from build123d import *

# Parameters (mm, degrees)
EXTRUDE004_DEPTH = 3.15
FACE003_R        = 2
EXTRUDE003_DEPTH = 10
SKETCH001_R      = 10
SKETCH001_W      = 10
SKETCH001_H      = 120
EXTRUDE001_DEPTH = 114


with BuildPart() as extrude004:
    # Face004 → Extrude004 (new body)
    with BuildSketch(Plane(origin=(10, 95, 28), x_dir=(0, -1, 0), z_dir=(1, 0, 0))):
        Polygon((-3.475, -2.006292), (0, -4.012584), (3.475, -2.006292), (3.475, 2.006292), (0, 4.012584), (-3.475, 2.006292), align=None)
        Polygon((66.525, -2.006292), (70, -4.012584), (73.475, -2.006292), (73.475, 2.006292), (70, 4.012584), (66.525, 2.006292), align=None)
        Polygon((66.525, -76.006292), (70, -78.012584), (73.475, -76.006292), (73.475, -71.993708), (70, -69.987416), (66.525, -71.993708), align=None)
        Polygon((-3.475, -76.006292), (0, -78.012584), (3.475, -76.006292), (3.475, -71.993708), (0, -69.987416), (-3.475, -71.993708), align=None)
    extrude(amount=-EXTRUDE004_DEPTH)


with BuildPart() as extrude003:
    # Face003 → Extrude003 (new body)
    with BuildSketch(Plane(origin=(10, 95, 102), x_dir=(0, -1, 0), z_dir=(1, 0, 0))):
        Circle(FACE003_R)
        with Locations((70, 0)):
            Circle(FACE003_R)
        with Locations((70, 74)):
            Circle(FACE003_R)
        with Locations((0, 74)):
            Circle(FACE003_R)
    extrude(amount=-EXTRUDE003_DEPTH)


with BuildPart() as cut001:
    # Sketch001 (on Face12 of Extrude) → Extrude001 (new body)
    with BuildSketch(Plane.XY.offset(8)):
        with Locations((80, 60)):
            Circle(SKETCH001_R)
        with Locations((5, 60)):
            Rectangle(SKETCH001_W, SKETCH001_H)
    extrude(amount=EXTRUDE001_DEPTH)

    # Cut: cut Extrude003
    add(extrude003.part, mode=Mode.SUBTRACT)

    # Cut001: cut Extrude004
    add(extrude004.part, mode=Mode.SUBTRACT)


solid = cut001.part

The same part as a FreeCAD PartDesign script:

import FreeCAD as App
import Part
import Sketcher
from FreeCAD import Vector
Q = App.Units.Quantity

doc = App.newDocument("Part")
body = doc.addObject("PartDesign::Body", "Body")
body.AllowCompound = True

# Sketch on YZ plane
sketch1 = body.newObject("Sketcher::SketchObject", "Sketch")
sketch1.AttachmentSupport = (doc.getObject("YZ_Plane"), [""])
sketch1.MapMode = "FlatFace"
sketch1.AttachmentOffset = App.Placement(Vector(0, 0, 10), App.Rotation())
sketch1.addGeometry(Part.LineSegment(Vector(98.5, 30, 0), Vector(95, 32, 0)), False)
sketch1.addGeometry(Part.LineSegment(Vector(95, 32, 0), Vector(91.5, 30, 0)), False)
sketch1.addGeometry(Part.LineSegment(Vector(91.5, 30, 0), Vector(91.5, 26, 0)), False)
sketch1.addGeometry(Part.LineSegment(Vector(91.5, 26, 0), Vector(95, 24, 0)), False)
sketch1.addGeometry(Part.LineSegment(Vector(95, 24, 0), Vector(98.5, 26, 0)), False)
sketch1.addGeometry(Part.LineSegment(Vector(98.5, 26, 0), Vector(98.5, 30, 0)), False)
sketch1.addGeometry(Part.LineSegment(Vector(28.5, 30, 0), Vector(25, 32, 0)), False)
sketch1.addGeometry(Part.LineSegment(Vector(25, 32, 0), Vector(21.5, 30, 0)), False)
sketch1.addGeometry(Part.LineSegment(Vector(21.5, 30, 0), Vector(21.5, 26, 0)), False)
sketch1.addGeometry(Part.LineSegment(Vector(21.5, 26, 0), Vector(25, 24, 0)), False)
sketch1.addGeometry(Part.LineSegment(Vector(25, 24, 0), Vector(28.5, 26, 0)), False)
sketch1.addGeometry(Part.LineSegment(Vector(28.5, 26, 0), Vector(28.5, 30, 0)), False)
sketch1.addGeometry(Part.LineSegment(Vector(28.5, 104, 0), Vector(25, 106, 0)), False)
sketch1.addGeometry(Part.LineSegment(Vector(25, 106, 0), Vector(21.5, 104, 0)), False)
sketch1.addGeometry(Part.LineSegment(Vector(21.5, 104, 0), Vector(21.5, 100, 0)), False)
sketch1.addGeometry(Part.LineSegment(Vector(21.5, 100, 0), Vector(25, 98, 0)), False)
sketch1.addGeometry(Part.LineSegment(Vector(25, 98, 0), Vector(28.5, 100, 0)), False)
sketch1.addGeometry(Part.LineSegment(Vector(28.5, 100, 0), Vector(28.5, 104, 0)), False)
sketch1.addGeometry(Part.LineSegment(Vector(98.5, 104, 0), Vector(95, 106, 0)), False)
sketch1.addGeometry(Part.LineSegment(Vector(95, 106, 0), Vector(91.5, 104, 0)), False)
sketch1.addGeometry(Part.LineSegment(Vector(91.5, 104, 0), Vector(91.5, 100, 0)), False)
sketch1.addGeometry(Part.LineSegment(Vector(91.5, 100, 0), Vector(95, 98, 0)), False)
sketch1.addGeometry(Part.LineSegment(Vector(95, 98, 0), Vector(98.5, 100, 0)), False)
sketch1.addGeometry(Part.LineSegment(Vector(98.5, 100, 0), Vector(98.5, 104, 0)), False)
sketch1.addConstraint(Sketcher.Constraint("Coincident", 0, 2, 1, 1))
sketch1.addConstraint(Sketcher.Constraint("Coincident", 1, 2, 2, 1))
sketch1.addConstraint(Sketcher.Constraint("Coincident", 2, 2, 3, 1))
sketch1.addConstraint(Sketcher.Constraint("Coincident", 3, 2, 4, 1))
sketch1.addConstraint(Sketcher.Constraint("Coincident", 4, 2, 5, 1))
sketch1.addConstraint(Sketcher.Constraint("Coincident", 5, 2, 0, 1))
sketch1.addConstraint(Sketcher.Constraint("Coincident", 6, 2, 7, 1))
sketch1.addConstraint(Sketcher.Constraint("Coincident", 7, 2, 8, 1))
sketch1.addConstraint(Sketcher.Constraint("Coincident", 8, 2, 9, 1))
sketch1.addConstraint(Sketcher.Constraint("Coincident", 9, 2, 10, 1))
sketch1.addConstraint(Sketcher.Constraint("Coincident", 10, 2, 11, 1))
sketch1.addConstraint(Sketcher.Constraint("Coincident", 11, 2, 6, 1))
sketch1.addConstraint(Sketcher.Constraint("Coincident", 12, 2, 13, 1))
sketch1.addConstraint(Sketcher.Constraint("Coincident", 13, 2, 14, 1))
sketch1.addConstraint(Sketcher.Constraint("Coincident", 14, 2, 15, 1))
sketch1.addConstraint(Sketcher.Constraint("Coincident", 15, 2, 16, 1))
sketch1.addConstraint(Sketcher.Constraint("Coincident", 16, 2, 17, 1))
sketch1.addConstraint(Sketcher.Constraint("Coincident", 17, 2, 12, 1))
sketch1.addConstraint(Sketcher.Constraint("Coincident", 18, 2, 19, 1))
sketch1.addConstraint(Sketcher.Constraint("Coincident", 19, 2, 20, 1))
sketch1.addConstraint(Sketcher.Constraint("Coincident", 20, 2, 21, 1))
sketch1.addConstraint(Sketcher.Constraint("Coincident", 21, 2, 22, 1))
sketch1.addConstraint(Sketcher.Constraint("Coincident", 22, 2, 23, 1))
sketch1.addConstraint(Sketcher.Constraint("Coincident", 23, 2, 18, 1))
sketch1.addConstraint(Sketcher.Constraint("Vertical", 2))
sketch1.addConstraint(Sketcher.Constraint("Vertical", 5))
sketch1.addConstraint(Sketcher.Constraint("Vertical", 8))
sketch1.addConstraint(Sketcher.Constraint("Vertical", 11))
sketch1.addConstraint(Sketcher.Constraint("Vertical", 14))
sketch1.addConstraint(Sketcher.Constraint("Vertical", 17))
sketch1.addConstraint(Sketcher.Constraint("Vertical", 20))
sketch1.addConstraint(Sketcher.Constraint("Vertical", 23))
sketch1.addConstraint(Sketcher.Constraint("Parallel", 0, 3))
sketch1.addConstraint(Sketcher.Constraint("Parallel", 1, 4))
sketch1.addConstraint(Sketcher.Constraint("Parallel", 3, 6))
sketch1.addConstraint(Sketcher.Constraint("Parallel", 4, 7))
sketch1.addConstraint(Sketcher.Constraint("Parallel", 6, 9))
sketch1.addConstraint(Sketcher.Constraint("Parallel", 7, 10))
sketch1.addConstraint(Sketcher.Constraint("Parallel", 9, 12))
sketch1.addConstraint(Sketcher.Constraint("Parallel", 10, 13))
sketch1.addConstraint(Sketcher.Constraint("Parallel", 12, 15))
sketch1.addConstraint(Sketcher.Constraint("Parallel", 13, 16))
sketch1.addConstraint(Sketcher.Constraint("Parallel", 15, 18))
sketch1.addConstraint(Sketcher.Constraint("Parallel", 16, 19))
sketch1.addConstraint(Sketcher.Constraint("Parallel", 18, 21))
sketch1.addConstraint(Sketcher.Constraint("Parallel", 19, 22))
sketch1.addConstraint(Sketcher.Constraint("Horizontal", 2, 2, 4, 2))
sketch1.addConstraint(Sketcher.Constraint("Horizontal", 1, 2, 5, 2))
sketch1.addConstraint(Sketcher.Constraint("Horizontal", 0, 2, 6, 2))
sketch1.addConstraint(Sketcher.Constraint("Horizontal", 5, 2, 7, 2))
sketch1.addConstraint(Sketcher.Constraint("Horizontal", 4, 2, 8, 2))
sketch1.addConstraint(Sketcher.Constraint("Horizontal", 3, 2, 9, 2))
sketch1.addConstraint(Sketcher.Constraint("Horizontal", 8, 2, 10, 2))
sketch1.addConstraint(Sketcher.Constraint("Horizontal", 14, 2, 16, 2))
sketch1.addConstraint(Sketcher.Constraint("Horizontal", 13, 2, 17, 2))
sketch1.addConstraint(Sketcher.Constraint("Horizontal", 12, 2, 18, 2))
sketch1.addConstraint(Sketcher.Constraint("Horizontal", 17, 2, 19, 2))
sketch1.addConstraint(Sketcher.Constraint("Horizontal", 16, 2, 20, 2))
sketch1.addConstraint(Sketcher.Constraint("Horizontal", 15, 2, 21, 2))
sketch1.addConstraint(Sketcher.Constraint("Horizontal", 20, 2, 22, 2))
sketch1.addConstraint(Sketcher.Constraint("Vertical", 0, 2, 3, 2))
sketch1.addConstraint(Sketcher.Constraint("Vertical", 9, 2, 12, 2))
sketch1.addConstraint(Sketcher.Constraint("Vertical", 8, 2, 13, 2))
sketch1.addConstraint(Sketcher.Constraint("Vertical", 3, 2, 18, 2))
sketch1.addConstraint(Sketcher.Constraint("Equal", 11, 14))
sketch1.addConstraint(Sketcher.Constraint("Angle", 0, Q("150.000002 deg")))
sketch1.addConstraint(Sketcher.Constraint("DistanceX", -1, 1, 0, 2, 95.0))
sketch1.addConstraint(Sketcher.Constraint("DistanceX", -1, 1, 6, 2, 25.0))
sketch1.addConstraint(Sketcher.Constraint("DistanceY", 6, 2, 12, 2, 74.0))
sketch1.addConstraint(Sketcher.Constraint("DistanceX", 2, 2, 4, 2, 6.95))
sketch1.addConstraint(Sketcher.Constraint("DistanceY", 2, 2, 2, 1, 4.012584))
sketch1.addConstraint(Sketcher.Constraint("DistanceY", -1, 1, 1, 2, 30.006292))
pad1 = body.newObject("PartDesign::Pad", "Pad")
pad1.Profile = sketch1
pad1.Length = 3.15
pad1.Reversed = True
body2 = doc.addObject("PartDesign::Body", "Body001")
body2.AllowCompound = True

# Sketch on YZ plane
sketch2 = body2.newObject("Sketcher::SketchObject", "Sketch001")
sketch2.AttachmentSupport = (doc.getObject("YZ_Plane001"), [""])
sketch2.MapMode = "FlatFace"
sketch2.AttachmentOffset = App.Placement(Vector(0, 0, 10), App.Rotation())
sketch2.addGeometry(Part.Circle(Vector(95, 102, 0), Vector(0, 0, 1), 2), False)
sketch2.addGeometry(Part.Circle(Vector(25, 102, 0), Vector(0, 0, 1), 2), False)
sketch2.addGeometry(Part.Circle(Vector(25, 28, 0), Vector(0, 0, 1), 2), False)
sketch2.addGeometry(Part.Circle(Vector(95, 28, 0), Vector(0, 0, 1), 2), False)
sketch2.addConstraint(Sketcher.Constraint("Equal", 0, 1))
sketch2.addConstraint(Sketcher.Constraint("Equal", 1, 2))
sketch2.addConstraint(Sketcher.Constraint("Equal", 2, 3))
sketch2.addConstraint(Sketcher.Constraint("Horizontal", 0, 3, 1, 3))
sketch2.addConstraint(Sketcher.Constraint("Horizontal", 2, 3, 3, 3))
sketch2.addConstraint(Sketcher.Constraint("Vertical", 1, 3, 2, 3))
sketch2.addConstraint(Sketcher.Constraint("Vertical", 0, 3, 3, 3))
sketch2.addConstraint(Sketcher.Constraint("Diameter", 0, 4.0))
sketch2.addConstraint(Sketcher.Constraint("DistanceX", -1, 1, 0, 3, 95.0))
sketch2.addConstraint(Sketcher.Constraint("DistanceY", -1, 1, 0, 3, 102.0))
sketch2.addConstraint(Sketcher.Constraint("DistanceX", -1, 1, 1, 3, 25.0))
sketch2.addConstraint(Sketcher.Constraint("DistanceY", -1, 1, 2, 3, 28.0))
pad2 = body2.newObject("PartDesign::Pad", "Pad001")
pad2.Profile = sketch2
pad2.Length = 10
pad2.Reversed = True
body3 = doc.addObject("PartDesign::Body", "Body002")
body3.AllowCompound = True

# Sketch on XY plane
sketch3 = body3.newObject("Sketcher::SketchObject", "Sketch002")
sketch3.AttachmentSupport = (doc.getObject("XY_Plane002"), [""])
sketch3.MapMode = "FlatFace"
sketch3.AttachmentOffset = App.Placement(Vector(0, 0, 8), App.Rotation())
sketch3.addGeometry(Part.Circle(Vector(80, 60, 0), Vector(0, 0, 1), 10), False)
sketch3.addGeometry(Part.LineSegment(Vector(0, 120, 0), Vector(0, 0, 0)), False)
sketch3.addGeometry(Part.LineSegment(Vector(0, 0, 0), Vector(10, 0, 0)), False)
sketch3.addGeometry(Part.LineSegment(Vector(10, 0, 0), Vector(10, 120, 0)), False)
sketch3.addGeometry(Part.LineSegment(Vector(10, 120, 0), Vector(0, 120, 0)), False)
sketch3.addConstraint(Sketcher.Constraint("Coincident", 1, 2, 2, 1))
sketch3.addConstraint(Sketcher.Constraint("Coincident", 2, 2, 3, 1))
sketch3.addConstraint(Sketcher.Constraint("Coincident", 3, 2, 4, 1))
sketch3.addConstraint(Sketcher.Constraint("Coincident", 4, 2, 1, 1))
sketch3.addConstraint(Sketcher.Constraint("Vertical", 1))
sketch3.addConstraint(Sketcher.Constraint("Horizontal", 2))
sketch3.addConstraint(Sketcher.Constraint("Vertical", 3))
sketch3.addConstraint(Sketcher.Constraint("Horizontal", 4))
sketch3.addConstraint(Sketcher.Constraint("Coincident", 1, 2, -1, 1))
sketch3.addConstraint(Sketcher.Constraint("Diameter", 0, 20.0))
sketch3.addConstraint(Sketcher.Constraint("DistanceX", 2, 1, 2, 2, 10.0))
sketch3.addConstraint(Sketcher.Constraint("DistanceY", 1, 2, 1, 1, 120.0))
sketch3.addConstraint(Sketcher.Constraint("DistanceX", -1, 1, 0, 3, 80.0))
sketch3.addConstraint(Sketcher.Constraint("DistanceY", -1, 1, 0, 3, 60.0))
pad3 = body3.newObject("PartDesign::Pad", "Pad002")
pad3.Profile = sketch3
pad3.Length = 114
doc.recompute()

boolean = body3.newObject("PartDesign::Boolean", "Boolean")
boolean.Type = "Cut"
boolean.addObjects([body2])
doc.recompute()

boolean2 = body3.newObject("PartDesign::Boolean", "Boolean001")
boolean2.Type = "Cut"
boolean2.addObjects([body])

doc.recompute()
